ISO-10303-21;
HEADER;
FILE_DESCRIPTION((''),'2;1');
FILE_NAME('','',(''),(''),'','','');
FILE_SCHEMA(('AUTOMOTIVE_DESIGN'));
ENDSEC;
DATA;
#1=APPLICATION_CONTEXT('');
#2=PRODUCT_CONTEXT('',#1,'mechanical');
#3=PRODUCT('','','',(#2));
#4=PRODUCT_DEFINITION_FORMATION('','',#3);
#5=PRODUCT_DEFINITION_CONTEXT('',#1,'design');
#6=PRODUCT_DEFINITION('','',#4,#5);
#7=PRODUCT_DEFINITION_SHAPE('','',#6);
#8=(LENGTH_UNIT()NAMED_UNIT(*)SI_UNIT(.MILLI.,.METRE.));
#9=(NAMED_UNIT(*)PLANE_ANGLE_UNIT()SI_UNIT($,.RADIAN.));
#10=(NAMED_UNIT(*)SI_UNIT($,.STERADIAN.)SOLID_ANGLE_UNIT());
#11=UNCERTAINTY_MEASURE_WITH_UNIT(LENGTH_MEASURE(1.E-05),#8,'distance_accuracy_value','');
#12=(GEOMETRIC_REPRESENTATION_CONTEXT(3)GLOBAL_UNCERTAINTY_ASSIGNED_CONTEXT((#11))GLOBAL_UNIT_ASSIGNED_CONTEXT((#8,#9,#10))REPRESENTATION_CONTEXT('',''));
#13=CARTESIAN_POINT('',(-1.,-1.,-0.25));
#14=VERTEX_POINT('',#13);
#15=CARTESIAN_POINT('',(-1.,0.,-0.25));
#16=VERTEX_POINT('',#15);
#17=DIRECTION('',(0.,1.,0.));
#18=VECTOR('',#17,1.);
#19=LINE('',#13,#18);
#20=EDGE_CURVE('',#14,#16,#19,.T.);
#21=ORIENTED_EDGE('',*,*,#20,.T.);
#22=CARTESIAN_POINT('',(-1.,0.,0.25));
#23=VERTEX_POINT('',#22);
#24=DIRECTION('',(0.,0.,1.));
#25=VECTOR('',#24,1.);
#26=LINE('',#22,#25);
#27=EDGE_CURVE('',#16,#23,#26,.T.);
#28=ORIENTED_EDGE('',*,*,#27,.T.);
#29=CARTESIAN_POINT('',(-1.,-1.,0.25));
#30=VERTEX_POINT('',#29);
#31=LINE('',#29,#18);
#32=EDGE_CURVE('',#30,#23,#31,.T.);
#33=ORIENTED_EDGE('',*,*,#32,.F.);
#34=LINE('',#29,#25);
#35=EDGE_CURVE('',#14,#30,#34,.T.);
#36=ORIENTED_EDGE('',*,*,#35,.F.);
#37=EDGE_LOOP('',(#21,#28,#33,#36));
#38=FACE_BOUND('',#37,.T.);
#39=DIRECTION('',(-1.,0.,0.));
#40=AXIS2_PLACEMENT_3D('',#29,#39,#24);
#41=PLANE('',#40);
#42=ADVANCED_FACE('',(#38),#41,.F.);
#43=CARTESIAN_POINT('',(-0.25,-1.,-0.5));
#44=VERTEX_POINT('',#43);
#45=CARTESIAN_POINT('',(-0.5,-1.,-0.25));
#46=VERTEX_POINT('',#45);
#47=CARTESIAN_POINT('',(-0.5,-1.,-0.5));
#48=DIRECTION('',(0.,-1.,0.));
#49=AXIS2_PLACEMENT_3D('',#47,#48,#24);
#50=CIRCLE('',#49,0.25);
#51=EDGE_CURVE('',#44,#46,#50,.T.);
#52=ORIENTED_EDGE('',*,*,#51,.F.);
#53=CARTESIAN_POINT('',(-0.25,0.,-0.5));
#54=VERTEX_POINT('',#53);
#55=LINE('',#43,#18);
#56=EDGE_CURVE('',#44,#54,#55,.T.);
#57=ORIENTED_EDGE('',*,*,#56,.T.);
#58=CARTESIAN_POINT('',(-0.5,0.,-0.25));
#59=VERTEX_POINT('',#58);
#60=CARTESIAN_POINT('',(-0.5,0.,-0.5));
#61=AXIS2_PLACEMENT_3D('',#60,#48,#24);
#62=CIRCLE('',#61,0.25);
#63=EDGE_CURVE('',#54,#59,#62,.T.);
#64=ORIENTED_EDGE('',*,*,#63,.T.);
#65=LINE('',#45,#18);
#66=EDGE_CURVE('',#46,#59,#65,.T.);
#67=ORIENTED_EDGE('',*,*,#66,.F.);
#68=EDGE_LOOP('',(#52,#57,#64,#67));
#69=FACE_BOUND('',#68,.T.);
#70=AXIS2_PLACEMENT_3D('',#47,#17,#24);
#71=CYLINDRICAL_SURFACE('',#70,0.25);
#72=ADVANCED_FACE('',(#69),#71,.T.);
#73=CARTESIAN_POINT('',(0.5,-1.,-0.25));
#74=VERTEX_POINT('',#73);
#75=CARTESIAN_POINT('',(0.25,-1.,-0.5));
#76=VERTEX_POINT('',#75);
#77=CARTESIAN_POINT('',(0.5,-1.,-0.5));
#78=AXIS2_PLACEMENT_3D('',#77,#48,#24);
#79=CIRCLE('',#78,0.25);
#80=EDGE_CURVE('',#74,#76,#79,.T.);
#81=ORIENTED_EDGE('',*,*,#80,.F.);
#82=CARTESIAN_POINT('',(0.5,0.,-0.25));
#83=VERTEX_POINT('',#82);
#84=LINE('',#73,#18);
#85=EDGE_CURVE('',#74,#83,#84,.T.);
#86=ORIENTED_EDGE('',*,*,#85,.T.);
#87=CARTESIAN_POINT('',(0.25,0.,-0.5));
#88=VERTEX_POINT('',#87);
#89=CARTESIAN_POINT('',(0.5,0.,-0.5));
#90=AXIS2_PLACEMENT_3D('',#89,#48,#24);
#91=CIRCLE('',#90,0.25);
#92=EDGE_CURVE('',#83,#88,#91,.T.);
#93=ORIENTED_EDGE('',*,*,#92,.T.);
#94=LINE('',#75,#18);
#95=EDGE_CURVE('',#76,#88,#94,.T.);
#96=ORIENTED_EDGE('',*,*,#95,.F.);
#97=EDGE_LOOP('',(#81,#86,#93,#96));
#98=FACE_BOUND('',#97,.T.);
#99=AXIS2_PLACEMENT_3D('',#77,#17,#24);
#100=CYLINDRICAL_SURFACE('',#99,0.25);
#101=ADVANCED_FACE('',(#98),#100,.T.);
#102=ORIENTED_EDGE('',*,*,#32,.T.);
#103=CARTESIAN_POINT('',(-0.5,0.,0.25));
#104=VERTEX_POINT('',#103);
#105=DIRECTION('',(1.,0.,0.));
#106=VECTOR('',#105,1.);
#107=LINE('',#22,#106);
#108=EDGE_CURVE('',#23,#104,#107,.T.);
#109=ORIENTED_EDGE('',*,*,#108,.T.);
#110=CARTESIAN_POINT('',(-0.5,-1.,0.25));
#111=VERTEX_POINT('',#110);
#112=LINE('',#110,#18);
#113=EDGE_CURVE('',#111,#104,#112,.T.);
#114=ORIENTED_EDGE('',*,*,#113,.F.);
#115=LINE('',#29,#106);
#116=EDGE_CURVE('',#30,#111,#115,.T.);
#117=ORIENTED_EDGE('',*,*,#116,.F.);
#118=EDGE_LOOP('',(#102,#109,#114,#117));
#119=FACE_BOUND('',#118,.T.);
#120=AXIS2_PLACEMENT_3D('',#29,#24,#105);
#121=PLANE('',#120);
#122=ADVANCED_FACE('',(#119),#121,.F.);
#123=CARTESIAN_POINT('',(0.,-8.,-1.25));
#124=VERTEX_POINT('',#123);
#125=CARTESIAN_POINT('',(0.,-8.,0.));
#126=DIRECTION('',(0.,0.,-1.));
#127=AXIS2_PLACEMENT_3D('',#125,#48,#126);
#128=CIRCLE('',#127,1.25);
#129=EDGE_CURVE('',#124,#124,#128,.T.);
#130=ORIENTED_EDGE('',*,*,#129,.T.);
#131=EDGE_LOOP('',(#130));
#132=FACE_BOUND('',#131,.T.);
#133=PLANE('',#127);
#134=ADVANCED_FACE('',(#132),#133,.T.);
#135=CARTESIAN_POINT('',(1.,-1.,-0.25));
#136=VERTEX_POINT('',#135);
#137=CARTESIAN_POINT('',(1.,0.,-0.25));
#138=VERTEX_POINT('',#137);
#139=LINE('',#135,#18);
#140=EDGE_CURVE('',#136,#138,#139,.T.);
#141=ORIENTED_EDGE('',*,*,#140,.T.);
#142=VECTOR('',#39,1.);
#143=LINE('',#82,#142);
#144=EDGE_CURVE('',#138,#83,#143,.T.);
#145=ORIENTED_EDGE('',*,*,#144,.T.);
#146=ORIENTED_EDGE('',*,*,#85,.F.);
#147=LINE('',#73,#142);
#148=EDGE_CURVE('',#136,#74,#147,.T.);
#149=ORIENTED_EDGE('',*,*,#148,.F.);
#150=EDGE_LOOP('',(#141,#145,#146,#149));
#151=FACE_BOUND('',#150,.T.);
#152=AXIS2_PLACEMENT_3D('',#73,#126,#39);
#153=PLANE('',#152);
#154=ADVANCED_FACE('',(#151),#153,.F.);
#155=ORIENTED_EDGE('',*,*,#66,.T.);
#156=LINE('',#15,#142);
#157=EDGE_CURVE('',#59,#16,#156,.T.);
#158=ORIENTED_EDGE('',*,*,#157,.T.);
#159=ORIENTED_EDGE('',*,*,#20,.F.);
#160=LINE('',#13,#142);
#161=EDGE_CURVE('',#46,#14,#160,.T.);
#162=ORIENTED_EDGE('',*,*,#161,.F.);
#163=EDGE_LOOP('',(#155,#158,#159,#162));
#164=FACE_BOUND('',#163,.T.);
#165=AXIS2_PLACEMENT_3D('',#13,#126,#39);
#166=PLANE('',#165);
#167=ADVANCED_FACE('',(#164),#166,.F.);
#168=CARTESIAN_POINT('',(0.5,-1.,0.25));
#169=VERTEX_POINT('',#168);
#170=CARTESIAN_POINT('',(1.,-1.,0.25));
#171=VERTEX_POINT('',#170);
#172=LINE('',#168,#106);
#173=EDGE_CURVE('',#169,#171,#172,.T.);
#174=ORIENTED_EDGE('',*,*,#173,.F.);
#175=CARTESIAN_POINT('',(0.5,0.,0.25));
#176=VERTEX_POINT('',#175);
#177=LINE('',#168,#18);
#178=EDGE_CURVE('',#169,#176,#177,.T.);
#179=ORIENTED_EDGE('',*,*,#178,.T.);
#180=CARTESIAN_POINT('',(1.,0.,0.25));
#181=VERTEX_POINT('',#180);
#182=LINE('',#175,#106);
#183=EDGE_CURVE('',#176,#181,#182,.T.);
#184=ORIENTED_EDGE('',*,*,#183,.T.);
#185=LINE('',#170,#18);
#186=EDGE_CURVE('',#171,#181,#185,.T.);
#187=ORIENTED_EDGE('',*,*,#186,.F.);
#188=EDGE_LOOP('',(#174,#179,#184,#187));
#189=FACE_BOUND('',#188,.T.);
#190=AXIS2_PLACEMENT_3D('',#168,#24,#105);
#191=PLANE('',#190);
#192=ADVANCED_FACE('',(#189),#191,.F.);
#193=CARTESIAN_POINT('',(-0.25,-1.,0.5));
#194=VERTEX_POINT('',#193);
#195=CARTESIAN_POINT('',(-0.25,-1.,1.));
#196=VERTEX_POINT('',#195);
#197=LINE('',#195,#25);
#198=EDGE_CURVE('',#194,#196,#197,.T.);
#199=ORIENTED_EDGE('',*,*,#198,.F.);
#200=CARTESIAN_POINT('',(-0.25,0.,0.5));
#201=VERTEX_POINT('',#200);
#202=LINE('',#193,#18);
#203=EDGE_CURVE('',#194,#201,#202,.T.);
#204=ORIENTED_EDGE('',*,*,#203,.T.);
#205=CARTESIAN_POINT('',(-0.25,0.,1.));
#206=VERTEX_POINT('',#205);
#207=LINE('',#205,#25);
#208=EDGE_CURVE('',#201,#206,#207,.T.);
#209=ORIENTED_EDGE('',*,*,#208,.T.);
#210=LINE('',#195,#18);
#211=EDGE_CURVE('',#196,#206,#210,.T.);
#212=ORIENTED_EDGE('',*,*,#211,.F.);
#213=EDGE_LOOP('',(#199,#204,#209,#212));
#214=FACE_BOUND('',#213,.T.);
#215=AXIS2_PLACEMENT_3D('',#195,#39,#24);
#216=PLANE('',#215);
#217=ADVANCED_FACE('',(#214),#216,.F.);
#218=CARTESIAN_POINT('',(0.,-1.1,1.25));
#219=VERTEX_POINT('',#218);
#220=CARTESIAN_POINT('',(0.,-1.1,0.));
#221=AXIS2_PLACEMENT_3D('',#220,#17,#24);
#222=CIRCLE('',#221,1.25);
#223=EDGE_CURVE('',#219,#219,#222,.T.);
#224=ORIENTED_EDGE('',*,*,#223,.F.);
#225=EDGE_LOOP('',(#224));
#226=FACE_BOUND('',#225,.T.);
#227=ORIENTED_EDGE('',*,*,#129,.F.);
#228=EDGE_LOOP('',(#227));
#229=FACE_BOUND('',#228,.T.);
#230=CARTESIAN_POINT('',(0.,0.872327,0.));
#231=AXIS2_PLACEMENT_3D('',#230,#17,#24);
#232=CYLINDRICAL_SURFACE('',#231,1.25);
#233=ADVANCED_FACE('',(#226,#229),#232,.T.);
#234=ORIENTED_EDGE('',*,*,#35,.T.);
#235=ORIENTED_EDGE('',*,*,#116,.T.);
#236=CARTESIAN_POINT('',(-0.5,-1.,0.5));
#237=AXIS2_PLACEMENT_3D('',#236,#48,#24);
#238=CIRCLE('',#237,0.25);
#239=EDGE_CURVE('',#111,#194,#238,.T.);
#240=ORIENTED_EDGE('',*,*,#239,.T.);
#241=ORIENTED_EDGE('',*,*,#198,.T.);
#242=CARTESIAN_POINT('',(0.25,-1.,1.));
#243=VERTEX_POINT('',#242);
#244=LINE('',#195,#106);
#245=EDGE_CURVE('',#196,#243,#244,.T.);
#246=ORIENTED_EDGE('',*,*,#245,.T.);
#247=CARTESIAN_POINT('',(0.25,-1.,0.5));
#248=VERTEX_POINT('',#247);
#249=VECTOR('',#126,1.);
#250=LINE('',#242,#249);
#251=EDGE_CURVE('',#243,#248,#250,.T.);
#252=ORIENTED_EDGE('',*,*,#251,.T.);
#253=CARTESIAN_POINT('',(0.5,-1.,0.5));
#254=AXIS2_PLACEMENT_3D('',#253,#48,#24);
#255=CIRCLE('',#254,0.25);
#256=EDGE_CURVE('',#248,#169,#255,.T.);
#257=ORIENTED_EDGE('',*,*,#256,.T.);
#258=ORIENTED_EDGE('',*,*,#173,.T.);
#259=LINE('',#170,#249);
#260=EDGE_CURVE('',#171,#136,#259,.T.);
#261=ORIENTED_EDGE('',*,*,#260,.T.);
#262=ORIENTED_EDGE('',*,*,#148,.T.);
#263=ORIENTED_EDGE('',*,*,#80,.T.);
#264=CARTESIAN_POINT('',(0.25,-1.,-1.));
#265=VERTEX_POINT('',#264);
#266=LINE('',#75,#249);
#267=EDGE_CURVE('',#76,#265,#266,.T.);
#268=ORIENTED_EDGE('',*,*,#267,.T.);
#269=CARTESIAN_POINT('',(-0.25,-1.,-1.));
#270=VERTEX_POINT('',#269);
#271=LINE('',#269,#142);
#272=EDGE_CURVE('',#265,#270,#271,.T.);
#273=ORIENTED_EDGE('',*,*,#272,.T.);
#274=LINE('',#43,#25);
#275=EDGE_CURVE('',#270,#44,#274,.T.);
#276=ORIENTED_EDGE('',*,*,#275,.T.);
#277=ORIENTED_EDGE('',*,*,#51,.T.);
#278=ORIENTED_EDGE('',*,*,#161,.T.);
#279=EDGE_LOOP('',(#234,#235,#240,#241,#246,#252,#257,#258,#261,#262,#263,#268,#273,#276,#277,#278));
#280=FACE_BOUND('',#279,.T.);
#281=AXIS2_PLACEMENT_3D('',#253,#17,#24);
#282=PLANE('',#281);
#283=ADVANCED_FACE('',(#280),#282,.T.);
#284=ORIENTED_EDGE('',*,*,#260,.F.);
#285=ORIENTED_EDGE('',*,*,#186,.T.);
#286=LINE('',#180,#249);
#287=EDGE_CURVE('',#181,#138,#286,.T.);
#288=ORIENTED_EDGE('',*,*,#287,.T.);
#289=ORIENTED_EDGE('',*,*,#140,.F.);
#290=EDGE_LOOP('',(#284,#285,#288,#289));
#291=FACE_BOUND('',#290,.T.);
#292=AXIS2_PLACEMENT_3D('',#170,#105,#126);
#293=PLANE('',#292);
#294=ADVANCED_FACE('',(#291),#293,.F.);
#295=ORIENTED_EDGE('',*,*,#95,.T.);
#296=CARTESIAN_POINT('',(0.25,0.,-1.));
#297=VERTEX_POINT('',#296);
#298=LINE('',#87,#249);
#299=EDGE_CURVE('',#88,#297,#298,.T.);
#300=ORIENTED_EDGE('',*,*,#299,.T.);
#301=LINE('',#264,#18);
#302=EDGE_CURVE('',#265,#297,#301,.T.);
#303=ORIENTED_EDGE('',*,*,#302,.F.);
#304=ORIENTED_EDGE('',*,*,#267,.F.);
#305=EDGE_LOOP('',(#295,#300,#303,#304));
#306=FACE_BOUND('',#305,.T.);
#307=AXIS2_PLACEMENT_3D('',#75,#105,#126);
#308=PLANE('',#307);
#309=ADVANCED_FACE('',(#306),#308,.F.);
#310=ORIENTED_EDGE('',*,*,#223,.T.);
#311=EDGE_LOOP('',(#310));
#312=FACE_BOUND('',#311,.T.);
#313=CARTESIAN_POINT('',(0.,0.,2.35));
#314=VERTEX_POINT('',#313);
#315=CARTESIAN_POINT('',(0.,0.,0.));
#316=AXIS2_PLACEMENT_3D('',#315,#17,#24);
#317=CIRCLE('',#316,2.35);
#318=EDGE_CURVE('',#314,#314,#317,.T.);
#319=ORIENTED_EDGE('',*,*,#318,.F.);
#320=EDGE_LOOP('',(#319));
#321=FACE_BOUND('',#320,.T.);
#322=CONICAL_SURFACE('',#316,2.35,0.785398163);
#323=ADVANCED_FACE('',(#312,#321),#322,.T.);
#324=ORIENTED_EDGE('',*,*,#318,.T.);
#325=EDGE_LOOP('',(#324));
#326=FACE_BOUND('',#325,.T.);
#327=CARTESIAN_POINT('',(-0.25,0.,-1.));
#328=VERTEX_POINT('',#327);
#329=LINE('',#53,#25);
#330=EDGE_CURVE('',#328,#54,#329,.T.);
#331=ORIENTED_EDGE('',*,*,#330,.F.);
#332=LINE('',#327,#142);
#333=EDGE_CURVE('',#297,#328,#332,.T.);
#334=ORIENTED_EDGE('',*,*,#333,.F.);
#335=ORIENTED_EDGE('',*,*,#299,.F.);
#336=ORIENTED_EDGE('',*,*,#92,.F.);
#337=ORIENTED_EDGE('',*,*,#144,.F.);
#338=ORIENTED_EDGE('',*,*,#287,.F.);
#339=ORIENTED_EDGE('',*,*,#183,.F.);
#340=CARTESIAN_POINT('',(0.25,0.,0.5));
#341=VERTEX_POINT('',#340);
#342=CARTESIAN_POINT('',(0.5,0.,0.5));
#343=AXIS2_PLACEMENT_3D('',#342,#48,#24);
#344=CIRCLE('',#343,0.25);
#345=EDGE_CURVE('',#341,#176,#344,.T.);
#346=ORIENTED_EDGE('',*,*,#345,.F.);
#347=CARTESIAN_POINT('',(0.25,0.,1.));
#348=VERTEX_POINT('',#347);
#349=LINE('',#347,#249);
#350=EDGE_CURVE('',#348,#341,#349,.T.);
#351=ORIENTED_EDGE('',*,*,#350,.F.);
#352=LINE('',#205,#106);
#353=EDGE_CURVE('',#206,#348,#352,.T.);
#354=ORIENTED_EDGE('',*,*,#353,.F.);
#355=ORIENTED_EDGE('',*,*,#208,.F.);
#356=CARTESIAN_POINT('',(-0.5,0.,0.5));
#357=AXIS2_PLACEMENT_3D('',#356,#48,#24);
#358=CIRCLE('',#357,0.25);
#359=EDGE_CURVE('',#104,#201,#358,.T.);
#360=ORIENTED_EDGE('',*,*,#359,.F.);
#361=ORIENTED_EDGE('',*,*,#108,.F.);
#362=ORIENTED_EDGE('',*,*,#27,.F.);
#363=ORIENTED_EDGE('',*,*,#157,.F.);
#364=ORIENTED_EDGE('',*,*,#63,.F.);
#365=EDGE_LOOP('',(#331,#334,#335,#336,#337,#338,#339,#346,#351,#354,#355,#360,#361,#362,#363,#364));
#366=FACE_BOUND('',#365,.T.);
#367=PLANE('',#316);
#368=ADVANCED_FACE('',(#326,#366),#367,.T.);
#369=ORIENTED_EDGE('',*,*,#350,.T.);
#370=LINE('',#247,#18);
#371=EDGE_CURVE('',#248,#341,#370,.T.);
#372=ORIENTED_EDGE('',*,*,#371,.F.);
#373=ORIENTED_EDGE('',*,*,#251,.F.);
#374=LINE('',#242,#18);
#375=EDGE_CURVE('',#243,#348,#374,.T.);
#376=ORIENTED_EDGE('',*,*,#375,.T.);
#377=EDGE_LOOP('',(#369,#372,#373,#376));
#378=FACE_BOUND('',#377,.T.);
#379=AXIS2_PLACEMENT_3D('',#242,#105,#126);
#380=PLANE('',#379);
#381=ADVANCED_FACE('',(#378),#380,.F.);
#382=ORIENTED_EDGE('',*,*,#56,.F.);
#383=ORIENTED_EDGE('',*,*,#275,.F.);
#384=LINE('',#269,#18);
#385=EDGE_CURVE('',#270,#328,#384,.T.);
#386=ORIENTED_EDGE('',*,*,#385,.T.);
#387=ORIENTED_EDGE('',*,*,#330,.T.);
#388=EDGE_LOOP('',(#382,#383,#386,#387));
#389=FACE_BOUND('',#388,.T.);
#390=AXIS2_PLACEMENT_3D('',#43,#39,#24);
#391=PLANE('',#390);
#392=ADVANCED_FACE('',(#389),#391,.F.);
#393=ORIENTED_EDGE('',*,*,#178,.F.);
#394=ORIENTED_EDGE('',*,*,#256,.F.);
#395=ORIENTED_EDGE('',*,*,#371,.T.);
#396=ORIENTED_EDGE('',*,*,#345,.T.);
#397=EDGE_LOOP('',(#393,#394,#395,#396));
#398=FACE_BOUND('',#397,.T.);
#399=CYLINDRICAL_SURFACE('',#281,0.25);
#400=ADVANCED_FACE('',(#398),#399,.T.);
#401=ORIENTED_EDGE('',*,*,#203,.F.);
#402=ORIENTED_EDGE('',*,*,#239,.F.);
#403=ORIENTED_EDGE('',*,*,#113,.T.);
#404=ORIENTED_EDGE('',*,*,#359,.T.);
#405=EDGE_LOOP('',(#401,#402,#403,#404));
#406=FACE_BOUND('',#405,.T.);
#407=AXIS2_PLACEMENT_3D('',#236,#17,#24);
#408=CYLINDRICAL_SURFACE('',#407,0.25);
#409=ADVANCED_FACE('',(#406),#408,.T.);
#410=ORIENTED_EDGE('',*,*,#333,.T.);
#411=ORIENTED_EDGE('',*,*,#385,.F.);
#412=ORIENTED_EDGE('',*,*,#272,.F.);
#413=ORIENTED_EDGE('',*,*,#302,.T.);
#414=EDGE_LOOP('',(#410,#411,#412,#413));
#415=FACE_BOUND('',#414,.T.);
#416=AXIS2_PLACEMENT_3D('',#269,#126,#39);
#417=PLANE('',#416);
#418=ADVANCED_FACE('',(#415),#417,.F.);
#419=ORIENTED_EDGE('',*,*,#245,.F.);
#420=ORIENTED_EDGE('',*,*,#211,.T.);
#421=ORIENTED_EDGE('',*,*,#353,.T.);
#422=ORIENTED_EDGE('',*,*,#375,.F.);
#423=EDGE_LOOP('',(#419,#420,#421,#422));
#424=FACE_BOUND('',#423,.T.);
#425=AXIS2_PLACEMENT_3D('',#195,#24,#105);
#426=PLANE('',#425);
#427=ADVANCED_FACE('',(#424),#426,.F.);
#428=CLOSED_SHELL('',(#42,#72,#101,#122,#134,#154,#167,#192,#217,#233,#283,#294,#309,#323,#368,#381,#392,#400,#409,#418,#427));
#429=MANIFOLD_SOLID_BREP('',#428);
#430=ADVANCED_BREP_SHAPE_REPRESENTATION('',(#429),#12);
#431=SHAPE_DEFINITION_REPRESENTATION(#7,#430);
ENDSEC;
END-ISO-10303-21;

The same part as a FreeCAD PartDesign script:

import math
import FreeCAD as App
import Part
import Sketcher
from FreeCAD import Vector
Q = App.Units.Quantity


def add_polygon(sketch, points):
    """Adds a closed chain of lines whose ends are joined by coincident constraints."""
    first, n = sketch.GeometryCount, len(points)
    for a, b in zip(points, points[1:] + points[:1]):
        sketch.addGeometry(Part.LineSegment(App.Vector(*a, 0), App.Vector(*b, 0)), False)
    for i in range(n):
        sketch.addConstraint(Sketcher.Constraint("Coincident", first + i, 2, first + (i + 1) % n, 1))

doc = App.newDocument("Part")
params = doc.addObject("Spreadsheet::Sheet", "Params")
for row, (alias, value) in enumerate([
    ("sketch1_width", "0.4 mm"),
    ("sketch1_width2", "1.5 mm"),
    ("sketch1_height", "2.35 mm"),
    ("revolution_angle", "360 deg"),
    ("sketch2_diameter", "2.5 mm"),
    ("pad1_length", "6.5 mm"),
    ("sketch3_radius", "0.25 mm"),
    ("sketch3_width", "0.5 mm"),
    ("pocket1_length", "1 mm"),
], start=1):
    params.set(f"A{row}", alias)
    params.set(f"B{row}", "=" + value)
    params.setAlias(f"B{row}", alias)

body = doc.addObject("PartDesign::Body", "Body")

# Sketch on YZ plane
sketch1 = doc.addObject("Sketcher::SketchObject", "Sketch")
body.addObject(sketch1)
sketch1.AttachmentSupport = (doc.YZ_Plane, [""])
sketch1.MapMode = "FlatFace"
add_polygon(sketch1, [(0, 0), (0, 2.35), (-1.1, 1.25), (-1.5, 1.25), (-1.5, 0)])  # lines 0-4
sketch1.addConstraint([
    Sketcher.Constraint("Vertical", 0),
    Sketcher.Constraint("Horizontal", 2),
    Sketcher.Constraint("Vertical", 3),
    Sketcher.Constraint("Horizontal", 4),
    Sketcher.Constraint("Coincident", 4, 2, -1, 1),
    Sketcher.Constraint("Angle", 1, Q("-135 deg")),
    Sketcher.Constraint("DistanceX", 2, 2, 2, 1, Q("0.4 mm")),
    Sketcher.Constraint("DistanceX", 4, 1, 4, 2, Q("1.5 mm")),
    Sketcher.Constraint("DistanceY", 0, 1, 0, 2, Q("2.35 mm")),
])
sketch1.setExpression("Constraints[11]", "Params.sketch1_width")
sketch1.setExpression("Constraints[12]", "Params.sketch1_width2")
sketch1.setExpression("Constraints[13]", "Params.sketch1_height")
revolution = doc.addObject("PartDesign::Revolution", "Revolution")
body.addObject(revolution)
revolution.Profile = sketch1
revolution.ReferenceAxis = (sketch1, ["H_Axis"])
revolution.setExpression("Angle", "Params.revolution_angle")

# Sketch on XZ plane
sketch2 = doc.addObject("Sketcher::SketchObject", "Sketch001")
body.addObject(sketch2)
sketch2.AttachmentSupport = (doc.XZ_Plane, [""])
sketch2.MapMode = "FlatFace"
sketch2.AttachmentOffset = App.Placement(Vector(0, 0, 1.5), App.Rotation())
sketch2.addGeometry(Part.Circle(Vector(0, 0, 0), Vector(0, 0, 1), 1.25), False)
sketch2.addConstraint([
    Sketcher.Constraint("Coincident", 0, 3, -1, 1),
    Sketcher.Constraint("Diameter", 0, Q("2.5 mm")),
])
sketch2.setExpression("Constraints[1]", "Params.sketch2_diameter")
pad1 = doc.addObject("PartDesign::Pad", "Pad")
body.addObject(pad1)
pad1.Profile = sketch2
pad1.setExpression("Length", "Params.pad1_length")

# Sketch on XZ plane
sketch3 = doc.addObject("Sketcher::SketchObject", "Sketch002")
body.addObject(sketch3)
sketch3.AttachmentSupport = (doc.XZ_Plane, [""])
sketch3.MapMode = "FlatFace"
sketch3.addGeometry([
    Part.LineSegment(Vector(-1, 0.25, 0), Vector(-0.5, 0.25, 0)),  # 0
    Part.ArcOfCircle(Part.Circle(Vector(-0.5, 0.5, 0), Vector(0, 0, 1), 0.25), math.radians(-90), math.radians(0)),  # 1
    Part.LineSegment(Vector(-0.25, 0.5, 0), Vector(-0.25, 1, 0)),  # 2
    Part.LineSegment(Vector(-0.25, 1, 0), Vector(0.25, 1, 0)),  # 3
    Part.LineSegment(Vector(0.25, 1, 0), Vector(0.25, 0.5, 0)),  # 4
    Part.ArcOfCircle(Part.Circle(Vector(0.5, 0.5, 0), Vector(0, 0, 1), 0.25), math.radians(-180), math.radians(-90)),  # 5
    Part.LineSegment(Vector(0.5, 0.25, 0), Vector(1, 0.25, 0)),  # 6
    Part.LineSegment(Vector(1, 0.25, 0), Vector(1, -0.25, 0)),  # 7
    Part.LineSegment(Vector(1, -0.25, 0), Vector(0.5, -0.25, 0)),  # 8
    Part.ArcOfCircle(Part.Circle(Vector(0.5, -0.5, 0), Vector(0, 0, 1), 0.25), math.radians(90), math.radians(180)),  # 9
    Part.LineSegment(Vector(0.25, -0.5, 0), Vector(0.25, -1, 0)),  # 10
    Part.LineSegment(Vector(0.25, -1, 0), Vector(-0.25, -1, 0)),  # 11
    Part.LineSegment(Vector(-0.25, -1, 0), Vector(-0.25, -0.5, 0)),  # 12
    Part.ArcOfCircle(Part.Circle(Vector(-0.5, -0.5, 0), Vector(0, 0, 1), 0.25), math.radians(0), math.radians(90)),  # 13
    Part.LineSegment(Vector(-0.5, -0.25, 0), Vector(-1, -0.25, 0)),  # 14
    Part.LineSegment(Vector(-1, -0.25, 0), Vector(-1, 0.25, 0)),  # 15
], False)
sketch3.addConstraint([
    Sketcher.Constraint("Tangent", 0, 2, 1, 1),
    Sketcher.Constraint("Tangent", 1, 2, 2, 1),
    Sketcher.Constraint("Coincident", 2, 2, 3, 1),
    Sketcher.Constraint("Coincident", 3, 2, 4, 1),
    Sketcher.Constraint("Tangent", 4, 2, 5, 1),
    Sketcher.Constraint("Tangent", 5, 2, 6, 1),
    Sketcher.Constraint("Coincident", 6, 2, 7, 1),
    Sketcher.Constraint("Coincident", 7, 2, 8, 1),
    Sketcher.Constraint("Tangent", 8, 2, 9, 1),
    Sketcher.Constraint("Tangent", 9, 2, 10, 1),
    Sketcher.Constraint("Coincident", 10, 2, 11, 1),
    Sketcher.Constraint("Coincident", 11, 2, 12, 1),
    Sketcher.Constraint("Tangent", 12, 2, 13, 1),
    Sketcher.Constraint("Tangent", 13, 2, 14, 1),
    Sketcher.Constraint("Coincident", 14, 2, 15, 1),
    Sketcher.Constraint("Coincident", 15, 2, 0, 1),
    Sketcher.Constraint("Horizontal", 0),
    Sketcher.Constraint("Vertical", 2),
    Sketcher.Constraint("Horizontal", 3),
    Sketcher.Constraint("Vertical", 4),
    Sketcher.Constraint("Horizontal", 6),
    Sketcher.Constraint("Vertical", 7),
    Sketcher.Constraint("Horizontal", 8),
    Sketcher.Constraint("Vertical", 10),
    Sketcher.Constraint("Horizontal", 11),
    Sketcher.Constraint("Vertical", 12),
    Sketcher.Constraint("Horizontal", 14),
    Sketcher.Constraint("Vertical", 15),
    Sketcher.Constraint("Equal", 1, 5),
    Sketcher.Constraint("Equal", 5, 9),
    Sketcher.Constraint("Equal", 9, 13),
    Sketcher.Constraint("Symmetric", 1, 3, 9, 3, -1, 1),
    Sketcher.Constraint("Symmetric", 5, 3, 13, 3, -1, 1),
    Sketcher.Constraint("Symmetric", 1, 3, 5, 3, -2),
    Sketcher.Constraint("Equal", 0, 3),
    Sketcher.Constraint("Equal", 3, 6),
    Sketcher.Constraint("Equal", 14, 2),
    Sketcher.Constraint("Equal", 4, 7),
    Sketcher.Constraint("Equal", 7, 10),
    Sketcher.Constraint("Radius", 1, Q("0.25 mm")),
    Sketcher.Constraint("DistanceX", 0, 1, 0, 2, Q("0.5 mm")),
])
sketch3.setExpression("Constraints[39]", "Params.sketch3_radius")
sketch3.setExpression("Constraints[40]", "Params.sketch3_width")
pocket1 = doc.addObject("PartDesign::Pocket", "Pocket")
body.addObject(pocket1)
pocket1.Profile = sketch3
pocket1.setExpression("Length", "Params.pocket1_length")
pocket1.Reversed = True

doc.recompute()
